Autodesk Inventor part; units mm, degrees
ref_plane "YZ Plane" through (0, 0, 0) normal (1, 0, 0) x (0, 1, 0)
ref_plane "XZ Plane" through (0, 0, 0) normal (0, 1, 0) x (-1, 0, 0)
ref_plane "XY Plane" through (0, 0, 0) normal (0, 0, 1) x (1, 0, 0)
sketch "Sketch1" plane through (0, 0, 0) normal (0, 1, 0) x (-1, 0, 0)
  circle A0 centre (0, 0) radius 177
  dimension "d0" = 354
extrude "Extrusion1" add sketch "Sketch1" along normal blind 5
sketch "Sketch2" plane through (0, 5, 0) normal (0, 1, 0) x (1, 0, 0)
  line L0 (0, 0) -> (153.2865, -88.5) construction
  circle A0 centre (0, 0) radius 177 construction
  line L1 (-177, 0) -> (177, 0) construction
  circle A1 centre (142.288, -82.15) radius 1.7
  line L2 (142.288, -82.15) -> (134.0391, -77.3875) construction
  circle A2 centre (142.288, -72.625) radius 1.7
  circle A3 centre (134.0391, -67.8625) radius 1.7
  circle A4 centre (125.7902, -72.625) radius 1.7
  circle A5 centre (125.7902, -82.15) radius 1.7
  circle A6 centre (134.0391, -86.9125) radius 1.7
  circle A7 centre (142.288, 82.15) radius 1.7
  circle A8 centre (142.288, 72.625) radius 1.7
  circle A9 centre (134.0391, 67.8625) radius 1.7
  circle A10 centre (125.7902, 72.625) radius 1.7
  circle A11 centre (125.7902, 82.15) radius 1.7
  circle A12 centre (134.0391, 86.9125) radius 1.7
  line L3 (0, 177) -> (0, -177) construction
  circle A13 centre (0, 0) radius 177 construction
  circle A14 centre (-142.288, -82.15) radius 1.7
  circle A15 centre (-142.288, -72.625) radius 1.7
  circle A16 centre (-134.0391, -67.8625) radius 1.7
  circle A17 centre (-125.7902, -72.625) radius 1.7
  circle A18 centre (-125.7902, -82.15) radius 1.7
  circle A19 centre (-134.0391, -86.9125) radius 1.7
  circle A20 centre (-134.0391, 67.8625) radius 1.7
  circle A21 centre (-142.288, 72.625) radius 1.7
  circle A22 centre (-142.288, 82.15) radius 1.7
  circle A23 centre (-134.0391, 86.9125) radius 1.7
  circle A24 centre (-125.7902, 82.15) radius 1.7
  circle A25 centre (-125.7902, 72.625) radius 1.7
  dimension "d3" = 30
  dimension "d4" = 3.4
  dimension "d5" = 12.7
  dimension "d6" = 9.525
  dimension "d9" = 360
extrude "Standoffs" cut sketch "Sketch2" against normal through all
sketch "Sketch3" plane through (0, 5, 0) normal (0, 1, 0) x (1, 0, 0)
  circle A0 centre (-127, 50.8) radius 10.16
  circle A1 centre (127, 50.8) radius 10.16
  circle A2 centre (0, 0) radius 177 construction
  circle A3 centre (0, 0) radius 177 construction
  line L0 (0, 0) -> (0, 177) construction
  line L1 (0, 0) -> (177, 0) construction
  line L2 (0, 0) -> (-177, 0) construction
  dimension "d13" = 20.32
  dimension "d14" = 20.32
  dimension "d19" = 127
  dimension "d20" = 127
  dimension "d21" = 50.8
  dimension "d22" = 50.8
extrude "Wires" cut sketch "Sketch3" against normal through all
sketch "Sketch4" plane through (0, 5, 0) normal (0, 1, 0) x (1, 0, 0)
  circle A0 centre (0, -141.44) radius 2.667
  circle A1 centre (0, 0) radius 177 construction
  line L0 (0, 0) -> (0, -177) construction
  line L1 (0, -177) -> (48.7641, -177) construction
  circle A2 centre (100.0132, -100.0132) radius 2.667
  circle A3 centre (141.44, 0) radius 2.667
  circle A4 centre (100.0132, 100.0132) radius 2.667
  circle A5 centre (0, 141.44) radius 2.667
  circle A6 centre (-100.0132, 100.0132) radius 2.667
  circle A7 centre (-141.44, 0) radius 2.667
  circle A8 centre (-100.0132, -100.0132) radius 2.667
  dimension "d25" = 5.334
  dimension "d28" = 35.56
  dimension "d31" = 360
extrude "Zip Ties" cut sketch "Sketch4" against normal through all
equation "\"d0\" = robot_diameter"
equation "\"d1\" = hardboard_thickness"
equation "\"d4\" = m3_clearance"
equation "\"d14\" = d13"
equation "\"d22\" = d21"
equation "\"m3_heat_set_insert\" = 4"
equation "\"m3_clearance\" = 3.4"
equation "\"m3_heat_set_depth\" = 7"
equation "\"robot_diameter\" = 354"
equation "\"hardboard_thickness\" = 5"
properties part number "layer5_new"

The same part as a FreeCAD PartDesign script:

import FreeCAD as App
import Part
import Sketcher

doc = App.newDocument("Part")
params = doc.addObject("Spreadsheet::Sheet", "Params")
for row, (alias, value) in enumerate([
    ("sketch1_diameter", "354 mm"),
    ("pad1_length", "5 mm"),
    ("sketch2_diameter", "3.4 mm"),
    ("sketch3_diameter", "20.32 mm"),
], start=1):
    params.set(f"A{row}", alias)
    params.set(f"B{row}", "=" + value)
    params.setAlias(f"B{row}", alias)

body = doc.addObject("PartDesign::Body", "Body")

# Sketch on XZ plane
sketch1 = body.newObject("Sketcher::SketchObject", "Sketch")
sketch1.AttachmentSupport = (doc.getObject("XZ_Plane"), [""])
sketch1.MapMode = "FlatFace"
sketch1.addGeometry(Part.Circle(App.Vector(0, 0, 0), App.Vector(0, 0, 1), 177), False)
sketch1.addConstraint(Sketcher.Constraint("Coincident", 0, 3, -1, 1))
sketch1.addConstraint(Sketcher.Constraint("Diameter", 0, 354.0))
sketch1.setExpression("Constraints[1]", "Params.sketch1_diameter")
pad1 = body.newObject("PartDesign::Pad", "Pad")
pad1.Profile = sketch1
pad1.setExpression("Length", "Params.pad1_length")
pad1.Reversed = True

# Sketch on XZ plane
sketch2 = body.newObject("Sketcher::SketchObject", "Sketch001")
sketch2.AttachmentSupport = (doc.getObject("XZ_Plane"), [""])
sketch2.MapMode = "FlatFace"
sketch2.AttachmentOffset = App.Placement(App.Vector(0, 0, -5), App.Rotation())
sketch2.addGeometry(Part.Circle(App.Vector(142.3, 82.2, 0), App.Vector(0, 0, 1), 1.7), False)
sketch2.addGeometry(Part.Circle(App.Vector(142.3, 72.6, 0), App.Vector(0, 0, 1), 1.7), False)
sketch2.addGeometry(Part.Circle(App.Vector(134, 67.9, 0), App.Vector(0, 0, 1), 1.7), False)
sketch2.addGeometry(Part.Circle(App.Vector(125.8, 72.6, 0), App.Vector(0, 0, 1), 1.7), False)
sketch2.addGeometry(Part.Circle(App.Vector(125.8, 82.2, 0), App.Vector(0, 0, 1), 1.7), False)
sketch2.addGeometry(Part.Circle(App.Vector(134, 86.9, 0), App.Vector(0, 0, 1), 1.7), False)
sketch2.addGeometry(Part.Circle(App.Vector(142.3, -82.2, 0), App.Vector(0, 0, 1), 1.7), False)
sketch2.addGeometry(Part.Circle(App.Vector(142.3, -72.6, 0), App.Vector(0, 0, 1), 1.7), False)
sketch2.addGeometry(Part.Circle(App.Vector(134, -67.9, 0), App.Vector(0, 0, 1), 1.7), False)
sketch2.addGeometry(Part.Circle(App.Vector(125.8, -72.6, 0), App.Vector(0, 0, 1), 1.7), False)
sketch2.addGeometry(Part.Circle(App.Vector(125.8, -82.2, 0), App.Vector(0, 0, 1), 1.7), False)
sketch2.addGeometry(Part.Circle(App.Vector(134, -86.9, 0), App.Vector(0, 0, 1), 1.7), False)
sketch2.addGeometry(Part.Circle(App.Vector(-142.3, 82.2, 0), App.Vector(0, 0, 1), 1.7), False)
sketch2.addGeometry(Part.Circle(App.Vector(-142.3, 72.6, 0), App.Vector(0, 0, 1), 1.7), False)
sketch2.addGeometry(Part.Circle(App.Vector(-134, 67.9, 0), App.Vector(0, 0, 1), 1.7), False)
sketch2.addGeometry(Part.Circle(App.Vector(-125.8, 72.6, 0), App.Vector(0, 0, 1), 1.7), False)
sketch2.addGeometry(Part.Circle(App.Vector(-125.8, 82.2, 0), App.Vector(0, 0, 1), 1.7), False)
sketch2.addGeometry(Part.Circle(App.Vector(-134, 86.9, 0), App.Vector(0, 0, 1), 1.7), False)
sketch2.addGeometry(Part.Circle(App.Vector(-134, -67.9, 0), App.Vector(0, 0, 1), 1.7), False)
sketch2.addGeometry(Part.Circle(App.Vector(-142.3, -72.6, 0), App.Vector(0, 0, 1), 1.7), False)
sketch2.addGeometry(Part.Circle(App.Vector(-142.3, -82.2, 0), App.Vector(0, 0, 1), 1.7), False)
sketch2.addGeometry(Part.Circle(App.Vector(-134, -86.9, 0), App.Vector(0, 0, 1), 1.7), False)
sketch2.addGeometry(Part.Circle(App.Vector(-125.8, -82.2, 0), App.Vector(0, 0, 1), 1.7), False)
sketch2.addGeometry(Part.Circle(App.Vector(-125.8, -72.6, 0), App.Vector(0, 0, 1), 1.7), False)
sketch2.addConstraint(Sketcher.Constraint("Equal", 0, 1))
sketch2.addConstraint(Sketcher.Constraint("Equal", 1, 2))
sketch2.addConstraint(Sketcher.Constraint("Equal", 2, 3))
sketch2.addConstraint(Sketcher.Constraint("Equal", 3, 4))
sketch2.addConstraint(Sketcher.Constraint("Equal", 4, 5))
sketch2.addConstraint(Sketcher.Constraint("Equal", 5, 6))
sketch2.addConstraint(Sketcher.Constraint("Equal", 6, 7))
sketch2.addConstraint(Sketcher.Constraint("Equal", 7, 8))
sketch2.addConstraint(Sketcher.Constraint("Equal", 8, 9))
sketch2.addConstraint(Sketcher.Constraint("Equal", 9, 10))
sketch2.addConstraint(Sketcher.Constraint("Equal", 10, 11))
sketch2.addConstraint(Sketcher.Constraint("Equal", 11, 12))
sketch2.addConstraint(Sketcher.Constraint("Equal", 12, 13))
sketch2.addConstraint(Sketcher.Constraint("Equal", 13, 14))
sketch2.addConstraint(Sketcher.Constraint("Equal", 14, 15))
sketch2.addConstraint(Sketcher.Constraint("Equal", 15, 16))
sketch2.addConstraint(Sketcher.Constraint("Equal", 16, 17))
sketch2.addConstraint(Sketcher.Constraint("Equal", 17, 18))
sketch2.addConstraint(Sketcher.Constraint("Equal", 18, 19))
sketch2.addConstraint(Sketcher.Constraint("Equal", 19, 20))
sketch2.addConstraint(Sketcher.Constraint("Equal", 20, 21))
sketch2.addConstraint(Sketcher.Constraint("Equal", 21, 22))
sketch2.addConstraint(Sketcher.Constraint("Equal", 22, 23))
sketch2.addConstraint(Sketcher.Constraint("Symmetric", 6, 3, 12, 3, -1, 1))
sketch2.addConstraint(Sketcher.Constraint("Symmetric", 7, 3, 13, 3, -1, 1))
sketch2.addConstraint(Sketcher.Constraint("Symmetric", 8, 3, 14, 3, -1, 1))
sketch2.addConstraint(Sketcher.Constraint("Symmetric", 9, 3, 15, 3, -1, 1))
sketch2.addConstraint(Sketcher.Constraint("Symmetric", 10, 3, 16, 3, -1, 1))
sketch2.addConstraint(Sketcher.Constraint("Symmetric", 11, 3, 17, 3, -1, 1))
sketch2.addConstraint(Sketcher.Constraint("Symmetric", 2, 3, 18, 3, -1, 1))
sketch2.addConstraint(Sketcher.Constraint("Symmetric", 1, 3, 19, 3, -1, 1))
sketch2.addConstraint(Sketcher.Constraint("Symmetric", 0, 3, 20, 3, -1, 1))
sketch2.addConstraint(Sketcher.Constraint("Symmetric", 5, 3, 21, 3, -1, 1))
sketch2.addConstraint(Sketcher.Constraint("Symmetric", 4, 3, 22, 3, -1, 1))
sketch2.addConstraint(Sketcher.Constraint("Symmetric", 3, 3, 23, 3, -1, 1))
sketch2.addConstraint(Sketcher.Constraint("Symmetric", 0, 3, 12, 3, -2))
sketch2.addConstraint(Sketcher.Constraint("Symmetric", 1, 3, 13, 3, -2))
sketch2.addConstraint(Sketcher.Constraint("Symmetric", 2, 3, 14, 3, -2))
sketch2.addConstraint(Sketcher.Constraint("Symmetric", 3, 3, 15, 3, -2))
sketch2.addConstraint(Sketcher.Constraint("Symmetric", 4, 3, 16, 3, -2))
sketch2.addConstraint(Sketcher.Constraint("Symmetric", 5, 3, 17, 3, -2))
sketch2.addConstraint(Sketcher.Constraint("Horizontal", 1, 3, 3, 3))
sketch2.addConstraint(Sketcher.Constraint("Horizontal", 0, 3, 4, 3))
sketch2.addConstraint(Sketcher.Constraint("Vertical", 0, 3, 1, 3))
sketch2.addConstraint(Sketcher.Constraint("Vertical", 3, 3, 4, 3))
sketch2.addConstraint(Sketcher.Constraint("Vertical", 2, 3, 5, 3))
sketch2.addConstraint(Sketcher.Constraint("Diameter", 0, 3.4))
sketch2.addConstraint(Sketcher.Constraint("DistanceY", 1, 3, 0, 3, 9.525))
sketch2.addConstraint(Sketcher.Constraint("DistanceY", 6, 3, 0, 3, 164.3))
sketch2.addConstraint(Sketcher.Constraint("DistanceY", 2, 3, 5, 3, 19.05))
sketch2.addConstraint(Sketcher.Constraint("DistanceX", -1, 1, 0, 3, 142.288))
sketch2.addConstraint(Sketcher.Constraint("DistanceX", -1, 1, 2, 3, 134.039))
sketch2.addConstraint(Sketcher.Constraint("DistanceX", 3, 3, 2, 3, 8.249))
sketch2.addConstraint(Sketcher.Constraint("DistanceY", 8, 3, 2, 3, 135.725))
sketch2.setExpression("Constraints[46]", "Params.sketch2_diameter")
pocket1 = body.newObject("PartDesign::Pocket", "Pocket")
pocket1.Profile = sketch2
pocket1.Type = "ThroughAll"
pocket1.Reversed = True

# Sketch on XZ plane
sketch3 = body.newObject("Sketcher::SketchObject", "Sketch002")
sketch3.AttachmentSupport = (doc.getObject("XZ_Plane"), [""])
sketch3.MapMode = "FlatFace"
sketch3.AttachmentOffset = App.Placement(App.Vector(0, 0, -5), App.Rotation())
sketch3.addGeometry(Part.Circle(App.Vector(-127, -51, 0), App.Vector(0, 0, 1), 10), False)
sketch3.addGeometry(Part.Circle(App.Vector(127, -51, 0), App.Vector(0, 0, 1), 10), False)
sketch3.addConstraint(Sketcher.Constraint("Equal", 0, 1))
sketch3.addConstraint(Sketcher.Constraint("Symmetric", 0, 3, 1, 3, -2))
sketch3.addConstraint(Sketcher.Constraint("Diameter", 0, 20.32))
sketch3.addConstraint(Sketcher.Constraint("DistanceX", 0, 3, -1, 1, 127.0))
sketch3.addConstraint(Sketcher.Constraint("DistanceY", 0, 3, -1, 1, 50.8))
sketch3.setExpression("Constraints[2]", "Params.sketch3_diameter")
pocket2 = body.newObject("PartDesign::Pocket", "Pocket001")
pocket2.Profile = sketch3
pocket2.Type = "ThroughAll"
pocket2.Reversed = True

# Sketch on XZ plane
sketch4 = body.newObject("Sketcher::SketchObject", "Sketch003")
sketch4.AttachmentSupport = (doc.getObject("XZ_Plane"), [""])
sketch4.MapMode = "FlatFace"
sketch4.AttachmentOffset = App.Placement(App.Vector(0, 0, -5), App.Rotation())
sketch4.addGeometry(Part.Circle(App.Vector(0, 141.4, 0), App.Vector(0, 0, 1), 2.7), False)
sketch4.addGeometry(Part.Circle(App.Vector(100, 100, 0), App.Vector(0, 0, 1), 2.7), False)
sketch4.addGeometry(Part.Circle(App.Vector(141.4, 0, 0), App.Vector(0, 0, 1), 2.7), False)
sketch4.addGeometry(Part.Circle(App.Vector(100, -100, 0), App.Vector(0, 0, 1), 2.7), False)
sketch4.addGeometry(Part.Circle(App.Vector(0, -141.4, 0), App.Vector(0, 0, 1), 2.7), False)
sketch4.addGeometry(Part.Circle(App.Vector(-100, -100, 0), App.Vector(0, 0, 1), 2.7), False)
sketch4.addGeometry(Part.Circle(App.Vector(-141.4, 0, 0), App.Vector(0, 0, 1), 2.7), False)
sketch4.addGeometry(Part.Circle(App.Vector(-100, 100, 0), App.Vector(0, 0, 1), 2.7), False)
sketch4.addConstraint(Sketcher.Constraint("Equal", 0, 1))
sketch4.addConstraint(Sketcher.Constraint("Equal", 1, 2))
sketch4.addConstraint(Sketcher.Constraint("Equal", 2, 3))
sketch4.addConstraint(Sketcher.Constraint("Equal", 3, 4))
sketch4.addConstraint(Sketcher.Constraint("Equal", 4, 5))
sketch4.addConstraint(Sketcher.Constraint("Equal", 5, 6))
sketch4.addConstraint(Sketcher.Constraint("Equal", 6, 7))
sketch4.addConstraint(Sketcher.Constraint("Symmetric", 0, 3, 4, 3, -1, 1))
sketch4.addConstraint(Sketcher.Constraint("Symmetric", 1, 3, 5, 3, -1, 1))
sketch4.addConstraint(Sketcher.Constraint("Symmetric", 2, 3, 6, 3, -1, 1))
sketch4.addConstraint(Sketcher.Constraint("Symmetric", 3, 3, 7, 3, -1, 1))
sketch4.addConstraint(Sketcher.Constraint("Symmetric", 3, 3, 5, 3, -2))
sketch4.addConstraint(Sketcher.Constraint("PointOnObject", 0, 3, -2))
sketch4.addConstraint(Sketcher.Constraint("PointOnObject", 2, 3, -1))
sketch4.addConstraint(Sketcher.Constraint("Diameter", 0, 5.334))
sketch4.addConstraint(Sketcher.Constraint("DistanceY", -1, 1, 0, 3, 141.44))
sketch4.addConstraint(Sketcher.Constraint("DistanceX", -1, 1, 2, 3, 141.44))
sketch4.addConstraint(Sketcher.Constraint("DistanceX", -1, 1, 1, 3, 100.0132))
sketch4.addConstraint(Sketcher.Constraint("DistanceY", -1, 1, 1, 3, 100.0132))
pocket3 = body.newObject("PartDesign::Pocket", "Pocket002")
pocket3.Profile = sketch4
pocket3.Type = "ThroughAll"
pocket3.Reversed = True

doc.recompute()
